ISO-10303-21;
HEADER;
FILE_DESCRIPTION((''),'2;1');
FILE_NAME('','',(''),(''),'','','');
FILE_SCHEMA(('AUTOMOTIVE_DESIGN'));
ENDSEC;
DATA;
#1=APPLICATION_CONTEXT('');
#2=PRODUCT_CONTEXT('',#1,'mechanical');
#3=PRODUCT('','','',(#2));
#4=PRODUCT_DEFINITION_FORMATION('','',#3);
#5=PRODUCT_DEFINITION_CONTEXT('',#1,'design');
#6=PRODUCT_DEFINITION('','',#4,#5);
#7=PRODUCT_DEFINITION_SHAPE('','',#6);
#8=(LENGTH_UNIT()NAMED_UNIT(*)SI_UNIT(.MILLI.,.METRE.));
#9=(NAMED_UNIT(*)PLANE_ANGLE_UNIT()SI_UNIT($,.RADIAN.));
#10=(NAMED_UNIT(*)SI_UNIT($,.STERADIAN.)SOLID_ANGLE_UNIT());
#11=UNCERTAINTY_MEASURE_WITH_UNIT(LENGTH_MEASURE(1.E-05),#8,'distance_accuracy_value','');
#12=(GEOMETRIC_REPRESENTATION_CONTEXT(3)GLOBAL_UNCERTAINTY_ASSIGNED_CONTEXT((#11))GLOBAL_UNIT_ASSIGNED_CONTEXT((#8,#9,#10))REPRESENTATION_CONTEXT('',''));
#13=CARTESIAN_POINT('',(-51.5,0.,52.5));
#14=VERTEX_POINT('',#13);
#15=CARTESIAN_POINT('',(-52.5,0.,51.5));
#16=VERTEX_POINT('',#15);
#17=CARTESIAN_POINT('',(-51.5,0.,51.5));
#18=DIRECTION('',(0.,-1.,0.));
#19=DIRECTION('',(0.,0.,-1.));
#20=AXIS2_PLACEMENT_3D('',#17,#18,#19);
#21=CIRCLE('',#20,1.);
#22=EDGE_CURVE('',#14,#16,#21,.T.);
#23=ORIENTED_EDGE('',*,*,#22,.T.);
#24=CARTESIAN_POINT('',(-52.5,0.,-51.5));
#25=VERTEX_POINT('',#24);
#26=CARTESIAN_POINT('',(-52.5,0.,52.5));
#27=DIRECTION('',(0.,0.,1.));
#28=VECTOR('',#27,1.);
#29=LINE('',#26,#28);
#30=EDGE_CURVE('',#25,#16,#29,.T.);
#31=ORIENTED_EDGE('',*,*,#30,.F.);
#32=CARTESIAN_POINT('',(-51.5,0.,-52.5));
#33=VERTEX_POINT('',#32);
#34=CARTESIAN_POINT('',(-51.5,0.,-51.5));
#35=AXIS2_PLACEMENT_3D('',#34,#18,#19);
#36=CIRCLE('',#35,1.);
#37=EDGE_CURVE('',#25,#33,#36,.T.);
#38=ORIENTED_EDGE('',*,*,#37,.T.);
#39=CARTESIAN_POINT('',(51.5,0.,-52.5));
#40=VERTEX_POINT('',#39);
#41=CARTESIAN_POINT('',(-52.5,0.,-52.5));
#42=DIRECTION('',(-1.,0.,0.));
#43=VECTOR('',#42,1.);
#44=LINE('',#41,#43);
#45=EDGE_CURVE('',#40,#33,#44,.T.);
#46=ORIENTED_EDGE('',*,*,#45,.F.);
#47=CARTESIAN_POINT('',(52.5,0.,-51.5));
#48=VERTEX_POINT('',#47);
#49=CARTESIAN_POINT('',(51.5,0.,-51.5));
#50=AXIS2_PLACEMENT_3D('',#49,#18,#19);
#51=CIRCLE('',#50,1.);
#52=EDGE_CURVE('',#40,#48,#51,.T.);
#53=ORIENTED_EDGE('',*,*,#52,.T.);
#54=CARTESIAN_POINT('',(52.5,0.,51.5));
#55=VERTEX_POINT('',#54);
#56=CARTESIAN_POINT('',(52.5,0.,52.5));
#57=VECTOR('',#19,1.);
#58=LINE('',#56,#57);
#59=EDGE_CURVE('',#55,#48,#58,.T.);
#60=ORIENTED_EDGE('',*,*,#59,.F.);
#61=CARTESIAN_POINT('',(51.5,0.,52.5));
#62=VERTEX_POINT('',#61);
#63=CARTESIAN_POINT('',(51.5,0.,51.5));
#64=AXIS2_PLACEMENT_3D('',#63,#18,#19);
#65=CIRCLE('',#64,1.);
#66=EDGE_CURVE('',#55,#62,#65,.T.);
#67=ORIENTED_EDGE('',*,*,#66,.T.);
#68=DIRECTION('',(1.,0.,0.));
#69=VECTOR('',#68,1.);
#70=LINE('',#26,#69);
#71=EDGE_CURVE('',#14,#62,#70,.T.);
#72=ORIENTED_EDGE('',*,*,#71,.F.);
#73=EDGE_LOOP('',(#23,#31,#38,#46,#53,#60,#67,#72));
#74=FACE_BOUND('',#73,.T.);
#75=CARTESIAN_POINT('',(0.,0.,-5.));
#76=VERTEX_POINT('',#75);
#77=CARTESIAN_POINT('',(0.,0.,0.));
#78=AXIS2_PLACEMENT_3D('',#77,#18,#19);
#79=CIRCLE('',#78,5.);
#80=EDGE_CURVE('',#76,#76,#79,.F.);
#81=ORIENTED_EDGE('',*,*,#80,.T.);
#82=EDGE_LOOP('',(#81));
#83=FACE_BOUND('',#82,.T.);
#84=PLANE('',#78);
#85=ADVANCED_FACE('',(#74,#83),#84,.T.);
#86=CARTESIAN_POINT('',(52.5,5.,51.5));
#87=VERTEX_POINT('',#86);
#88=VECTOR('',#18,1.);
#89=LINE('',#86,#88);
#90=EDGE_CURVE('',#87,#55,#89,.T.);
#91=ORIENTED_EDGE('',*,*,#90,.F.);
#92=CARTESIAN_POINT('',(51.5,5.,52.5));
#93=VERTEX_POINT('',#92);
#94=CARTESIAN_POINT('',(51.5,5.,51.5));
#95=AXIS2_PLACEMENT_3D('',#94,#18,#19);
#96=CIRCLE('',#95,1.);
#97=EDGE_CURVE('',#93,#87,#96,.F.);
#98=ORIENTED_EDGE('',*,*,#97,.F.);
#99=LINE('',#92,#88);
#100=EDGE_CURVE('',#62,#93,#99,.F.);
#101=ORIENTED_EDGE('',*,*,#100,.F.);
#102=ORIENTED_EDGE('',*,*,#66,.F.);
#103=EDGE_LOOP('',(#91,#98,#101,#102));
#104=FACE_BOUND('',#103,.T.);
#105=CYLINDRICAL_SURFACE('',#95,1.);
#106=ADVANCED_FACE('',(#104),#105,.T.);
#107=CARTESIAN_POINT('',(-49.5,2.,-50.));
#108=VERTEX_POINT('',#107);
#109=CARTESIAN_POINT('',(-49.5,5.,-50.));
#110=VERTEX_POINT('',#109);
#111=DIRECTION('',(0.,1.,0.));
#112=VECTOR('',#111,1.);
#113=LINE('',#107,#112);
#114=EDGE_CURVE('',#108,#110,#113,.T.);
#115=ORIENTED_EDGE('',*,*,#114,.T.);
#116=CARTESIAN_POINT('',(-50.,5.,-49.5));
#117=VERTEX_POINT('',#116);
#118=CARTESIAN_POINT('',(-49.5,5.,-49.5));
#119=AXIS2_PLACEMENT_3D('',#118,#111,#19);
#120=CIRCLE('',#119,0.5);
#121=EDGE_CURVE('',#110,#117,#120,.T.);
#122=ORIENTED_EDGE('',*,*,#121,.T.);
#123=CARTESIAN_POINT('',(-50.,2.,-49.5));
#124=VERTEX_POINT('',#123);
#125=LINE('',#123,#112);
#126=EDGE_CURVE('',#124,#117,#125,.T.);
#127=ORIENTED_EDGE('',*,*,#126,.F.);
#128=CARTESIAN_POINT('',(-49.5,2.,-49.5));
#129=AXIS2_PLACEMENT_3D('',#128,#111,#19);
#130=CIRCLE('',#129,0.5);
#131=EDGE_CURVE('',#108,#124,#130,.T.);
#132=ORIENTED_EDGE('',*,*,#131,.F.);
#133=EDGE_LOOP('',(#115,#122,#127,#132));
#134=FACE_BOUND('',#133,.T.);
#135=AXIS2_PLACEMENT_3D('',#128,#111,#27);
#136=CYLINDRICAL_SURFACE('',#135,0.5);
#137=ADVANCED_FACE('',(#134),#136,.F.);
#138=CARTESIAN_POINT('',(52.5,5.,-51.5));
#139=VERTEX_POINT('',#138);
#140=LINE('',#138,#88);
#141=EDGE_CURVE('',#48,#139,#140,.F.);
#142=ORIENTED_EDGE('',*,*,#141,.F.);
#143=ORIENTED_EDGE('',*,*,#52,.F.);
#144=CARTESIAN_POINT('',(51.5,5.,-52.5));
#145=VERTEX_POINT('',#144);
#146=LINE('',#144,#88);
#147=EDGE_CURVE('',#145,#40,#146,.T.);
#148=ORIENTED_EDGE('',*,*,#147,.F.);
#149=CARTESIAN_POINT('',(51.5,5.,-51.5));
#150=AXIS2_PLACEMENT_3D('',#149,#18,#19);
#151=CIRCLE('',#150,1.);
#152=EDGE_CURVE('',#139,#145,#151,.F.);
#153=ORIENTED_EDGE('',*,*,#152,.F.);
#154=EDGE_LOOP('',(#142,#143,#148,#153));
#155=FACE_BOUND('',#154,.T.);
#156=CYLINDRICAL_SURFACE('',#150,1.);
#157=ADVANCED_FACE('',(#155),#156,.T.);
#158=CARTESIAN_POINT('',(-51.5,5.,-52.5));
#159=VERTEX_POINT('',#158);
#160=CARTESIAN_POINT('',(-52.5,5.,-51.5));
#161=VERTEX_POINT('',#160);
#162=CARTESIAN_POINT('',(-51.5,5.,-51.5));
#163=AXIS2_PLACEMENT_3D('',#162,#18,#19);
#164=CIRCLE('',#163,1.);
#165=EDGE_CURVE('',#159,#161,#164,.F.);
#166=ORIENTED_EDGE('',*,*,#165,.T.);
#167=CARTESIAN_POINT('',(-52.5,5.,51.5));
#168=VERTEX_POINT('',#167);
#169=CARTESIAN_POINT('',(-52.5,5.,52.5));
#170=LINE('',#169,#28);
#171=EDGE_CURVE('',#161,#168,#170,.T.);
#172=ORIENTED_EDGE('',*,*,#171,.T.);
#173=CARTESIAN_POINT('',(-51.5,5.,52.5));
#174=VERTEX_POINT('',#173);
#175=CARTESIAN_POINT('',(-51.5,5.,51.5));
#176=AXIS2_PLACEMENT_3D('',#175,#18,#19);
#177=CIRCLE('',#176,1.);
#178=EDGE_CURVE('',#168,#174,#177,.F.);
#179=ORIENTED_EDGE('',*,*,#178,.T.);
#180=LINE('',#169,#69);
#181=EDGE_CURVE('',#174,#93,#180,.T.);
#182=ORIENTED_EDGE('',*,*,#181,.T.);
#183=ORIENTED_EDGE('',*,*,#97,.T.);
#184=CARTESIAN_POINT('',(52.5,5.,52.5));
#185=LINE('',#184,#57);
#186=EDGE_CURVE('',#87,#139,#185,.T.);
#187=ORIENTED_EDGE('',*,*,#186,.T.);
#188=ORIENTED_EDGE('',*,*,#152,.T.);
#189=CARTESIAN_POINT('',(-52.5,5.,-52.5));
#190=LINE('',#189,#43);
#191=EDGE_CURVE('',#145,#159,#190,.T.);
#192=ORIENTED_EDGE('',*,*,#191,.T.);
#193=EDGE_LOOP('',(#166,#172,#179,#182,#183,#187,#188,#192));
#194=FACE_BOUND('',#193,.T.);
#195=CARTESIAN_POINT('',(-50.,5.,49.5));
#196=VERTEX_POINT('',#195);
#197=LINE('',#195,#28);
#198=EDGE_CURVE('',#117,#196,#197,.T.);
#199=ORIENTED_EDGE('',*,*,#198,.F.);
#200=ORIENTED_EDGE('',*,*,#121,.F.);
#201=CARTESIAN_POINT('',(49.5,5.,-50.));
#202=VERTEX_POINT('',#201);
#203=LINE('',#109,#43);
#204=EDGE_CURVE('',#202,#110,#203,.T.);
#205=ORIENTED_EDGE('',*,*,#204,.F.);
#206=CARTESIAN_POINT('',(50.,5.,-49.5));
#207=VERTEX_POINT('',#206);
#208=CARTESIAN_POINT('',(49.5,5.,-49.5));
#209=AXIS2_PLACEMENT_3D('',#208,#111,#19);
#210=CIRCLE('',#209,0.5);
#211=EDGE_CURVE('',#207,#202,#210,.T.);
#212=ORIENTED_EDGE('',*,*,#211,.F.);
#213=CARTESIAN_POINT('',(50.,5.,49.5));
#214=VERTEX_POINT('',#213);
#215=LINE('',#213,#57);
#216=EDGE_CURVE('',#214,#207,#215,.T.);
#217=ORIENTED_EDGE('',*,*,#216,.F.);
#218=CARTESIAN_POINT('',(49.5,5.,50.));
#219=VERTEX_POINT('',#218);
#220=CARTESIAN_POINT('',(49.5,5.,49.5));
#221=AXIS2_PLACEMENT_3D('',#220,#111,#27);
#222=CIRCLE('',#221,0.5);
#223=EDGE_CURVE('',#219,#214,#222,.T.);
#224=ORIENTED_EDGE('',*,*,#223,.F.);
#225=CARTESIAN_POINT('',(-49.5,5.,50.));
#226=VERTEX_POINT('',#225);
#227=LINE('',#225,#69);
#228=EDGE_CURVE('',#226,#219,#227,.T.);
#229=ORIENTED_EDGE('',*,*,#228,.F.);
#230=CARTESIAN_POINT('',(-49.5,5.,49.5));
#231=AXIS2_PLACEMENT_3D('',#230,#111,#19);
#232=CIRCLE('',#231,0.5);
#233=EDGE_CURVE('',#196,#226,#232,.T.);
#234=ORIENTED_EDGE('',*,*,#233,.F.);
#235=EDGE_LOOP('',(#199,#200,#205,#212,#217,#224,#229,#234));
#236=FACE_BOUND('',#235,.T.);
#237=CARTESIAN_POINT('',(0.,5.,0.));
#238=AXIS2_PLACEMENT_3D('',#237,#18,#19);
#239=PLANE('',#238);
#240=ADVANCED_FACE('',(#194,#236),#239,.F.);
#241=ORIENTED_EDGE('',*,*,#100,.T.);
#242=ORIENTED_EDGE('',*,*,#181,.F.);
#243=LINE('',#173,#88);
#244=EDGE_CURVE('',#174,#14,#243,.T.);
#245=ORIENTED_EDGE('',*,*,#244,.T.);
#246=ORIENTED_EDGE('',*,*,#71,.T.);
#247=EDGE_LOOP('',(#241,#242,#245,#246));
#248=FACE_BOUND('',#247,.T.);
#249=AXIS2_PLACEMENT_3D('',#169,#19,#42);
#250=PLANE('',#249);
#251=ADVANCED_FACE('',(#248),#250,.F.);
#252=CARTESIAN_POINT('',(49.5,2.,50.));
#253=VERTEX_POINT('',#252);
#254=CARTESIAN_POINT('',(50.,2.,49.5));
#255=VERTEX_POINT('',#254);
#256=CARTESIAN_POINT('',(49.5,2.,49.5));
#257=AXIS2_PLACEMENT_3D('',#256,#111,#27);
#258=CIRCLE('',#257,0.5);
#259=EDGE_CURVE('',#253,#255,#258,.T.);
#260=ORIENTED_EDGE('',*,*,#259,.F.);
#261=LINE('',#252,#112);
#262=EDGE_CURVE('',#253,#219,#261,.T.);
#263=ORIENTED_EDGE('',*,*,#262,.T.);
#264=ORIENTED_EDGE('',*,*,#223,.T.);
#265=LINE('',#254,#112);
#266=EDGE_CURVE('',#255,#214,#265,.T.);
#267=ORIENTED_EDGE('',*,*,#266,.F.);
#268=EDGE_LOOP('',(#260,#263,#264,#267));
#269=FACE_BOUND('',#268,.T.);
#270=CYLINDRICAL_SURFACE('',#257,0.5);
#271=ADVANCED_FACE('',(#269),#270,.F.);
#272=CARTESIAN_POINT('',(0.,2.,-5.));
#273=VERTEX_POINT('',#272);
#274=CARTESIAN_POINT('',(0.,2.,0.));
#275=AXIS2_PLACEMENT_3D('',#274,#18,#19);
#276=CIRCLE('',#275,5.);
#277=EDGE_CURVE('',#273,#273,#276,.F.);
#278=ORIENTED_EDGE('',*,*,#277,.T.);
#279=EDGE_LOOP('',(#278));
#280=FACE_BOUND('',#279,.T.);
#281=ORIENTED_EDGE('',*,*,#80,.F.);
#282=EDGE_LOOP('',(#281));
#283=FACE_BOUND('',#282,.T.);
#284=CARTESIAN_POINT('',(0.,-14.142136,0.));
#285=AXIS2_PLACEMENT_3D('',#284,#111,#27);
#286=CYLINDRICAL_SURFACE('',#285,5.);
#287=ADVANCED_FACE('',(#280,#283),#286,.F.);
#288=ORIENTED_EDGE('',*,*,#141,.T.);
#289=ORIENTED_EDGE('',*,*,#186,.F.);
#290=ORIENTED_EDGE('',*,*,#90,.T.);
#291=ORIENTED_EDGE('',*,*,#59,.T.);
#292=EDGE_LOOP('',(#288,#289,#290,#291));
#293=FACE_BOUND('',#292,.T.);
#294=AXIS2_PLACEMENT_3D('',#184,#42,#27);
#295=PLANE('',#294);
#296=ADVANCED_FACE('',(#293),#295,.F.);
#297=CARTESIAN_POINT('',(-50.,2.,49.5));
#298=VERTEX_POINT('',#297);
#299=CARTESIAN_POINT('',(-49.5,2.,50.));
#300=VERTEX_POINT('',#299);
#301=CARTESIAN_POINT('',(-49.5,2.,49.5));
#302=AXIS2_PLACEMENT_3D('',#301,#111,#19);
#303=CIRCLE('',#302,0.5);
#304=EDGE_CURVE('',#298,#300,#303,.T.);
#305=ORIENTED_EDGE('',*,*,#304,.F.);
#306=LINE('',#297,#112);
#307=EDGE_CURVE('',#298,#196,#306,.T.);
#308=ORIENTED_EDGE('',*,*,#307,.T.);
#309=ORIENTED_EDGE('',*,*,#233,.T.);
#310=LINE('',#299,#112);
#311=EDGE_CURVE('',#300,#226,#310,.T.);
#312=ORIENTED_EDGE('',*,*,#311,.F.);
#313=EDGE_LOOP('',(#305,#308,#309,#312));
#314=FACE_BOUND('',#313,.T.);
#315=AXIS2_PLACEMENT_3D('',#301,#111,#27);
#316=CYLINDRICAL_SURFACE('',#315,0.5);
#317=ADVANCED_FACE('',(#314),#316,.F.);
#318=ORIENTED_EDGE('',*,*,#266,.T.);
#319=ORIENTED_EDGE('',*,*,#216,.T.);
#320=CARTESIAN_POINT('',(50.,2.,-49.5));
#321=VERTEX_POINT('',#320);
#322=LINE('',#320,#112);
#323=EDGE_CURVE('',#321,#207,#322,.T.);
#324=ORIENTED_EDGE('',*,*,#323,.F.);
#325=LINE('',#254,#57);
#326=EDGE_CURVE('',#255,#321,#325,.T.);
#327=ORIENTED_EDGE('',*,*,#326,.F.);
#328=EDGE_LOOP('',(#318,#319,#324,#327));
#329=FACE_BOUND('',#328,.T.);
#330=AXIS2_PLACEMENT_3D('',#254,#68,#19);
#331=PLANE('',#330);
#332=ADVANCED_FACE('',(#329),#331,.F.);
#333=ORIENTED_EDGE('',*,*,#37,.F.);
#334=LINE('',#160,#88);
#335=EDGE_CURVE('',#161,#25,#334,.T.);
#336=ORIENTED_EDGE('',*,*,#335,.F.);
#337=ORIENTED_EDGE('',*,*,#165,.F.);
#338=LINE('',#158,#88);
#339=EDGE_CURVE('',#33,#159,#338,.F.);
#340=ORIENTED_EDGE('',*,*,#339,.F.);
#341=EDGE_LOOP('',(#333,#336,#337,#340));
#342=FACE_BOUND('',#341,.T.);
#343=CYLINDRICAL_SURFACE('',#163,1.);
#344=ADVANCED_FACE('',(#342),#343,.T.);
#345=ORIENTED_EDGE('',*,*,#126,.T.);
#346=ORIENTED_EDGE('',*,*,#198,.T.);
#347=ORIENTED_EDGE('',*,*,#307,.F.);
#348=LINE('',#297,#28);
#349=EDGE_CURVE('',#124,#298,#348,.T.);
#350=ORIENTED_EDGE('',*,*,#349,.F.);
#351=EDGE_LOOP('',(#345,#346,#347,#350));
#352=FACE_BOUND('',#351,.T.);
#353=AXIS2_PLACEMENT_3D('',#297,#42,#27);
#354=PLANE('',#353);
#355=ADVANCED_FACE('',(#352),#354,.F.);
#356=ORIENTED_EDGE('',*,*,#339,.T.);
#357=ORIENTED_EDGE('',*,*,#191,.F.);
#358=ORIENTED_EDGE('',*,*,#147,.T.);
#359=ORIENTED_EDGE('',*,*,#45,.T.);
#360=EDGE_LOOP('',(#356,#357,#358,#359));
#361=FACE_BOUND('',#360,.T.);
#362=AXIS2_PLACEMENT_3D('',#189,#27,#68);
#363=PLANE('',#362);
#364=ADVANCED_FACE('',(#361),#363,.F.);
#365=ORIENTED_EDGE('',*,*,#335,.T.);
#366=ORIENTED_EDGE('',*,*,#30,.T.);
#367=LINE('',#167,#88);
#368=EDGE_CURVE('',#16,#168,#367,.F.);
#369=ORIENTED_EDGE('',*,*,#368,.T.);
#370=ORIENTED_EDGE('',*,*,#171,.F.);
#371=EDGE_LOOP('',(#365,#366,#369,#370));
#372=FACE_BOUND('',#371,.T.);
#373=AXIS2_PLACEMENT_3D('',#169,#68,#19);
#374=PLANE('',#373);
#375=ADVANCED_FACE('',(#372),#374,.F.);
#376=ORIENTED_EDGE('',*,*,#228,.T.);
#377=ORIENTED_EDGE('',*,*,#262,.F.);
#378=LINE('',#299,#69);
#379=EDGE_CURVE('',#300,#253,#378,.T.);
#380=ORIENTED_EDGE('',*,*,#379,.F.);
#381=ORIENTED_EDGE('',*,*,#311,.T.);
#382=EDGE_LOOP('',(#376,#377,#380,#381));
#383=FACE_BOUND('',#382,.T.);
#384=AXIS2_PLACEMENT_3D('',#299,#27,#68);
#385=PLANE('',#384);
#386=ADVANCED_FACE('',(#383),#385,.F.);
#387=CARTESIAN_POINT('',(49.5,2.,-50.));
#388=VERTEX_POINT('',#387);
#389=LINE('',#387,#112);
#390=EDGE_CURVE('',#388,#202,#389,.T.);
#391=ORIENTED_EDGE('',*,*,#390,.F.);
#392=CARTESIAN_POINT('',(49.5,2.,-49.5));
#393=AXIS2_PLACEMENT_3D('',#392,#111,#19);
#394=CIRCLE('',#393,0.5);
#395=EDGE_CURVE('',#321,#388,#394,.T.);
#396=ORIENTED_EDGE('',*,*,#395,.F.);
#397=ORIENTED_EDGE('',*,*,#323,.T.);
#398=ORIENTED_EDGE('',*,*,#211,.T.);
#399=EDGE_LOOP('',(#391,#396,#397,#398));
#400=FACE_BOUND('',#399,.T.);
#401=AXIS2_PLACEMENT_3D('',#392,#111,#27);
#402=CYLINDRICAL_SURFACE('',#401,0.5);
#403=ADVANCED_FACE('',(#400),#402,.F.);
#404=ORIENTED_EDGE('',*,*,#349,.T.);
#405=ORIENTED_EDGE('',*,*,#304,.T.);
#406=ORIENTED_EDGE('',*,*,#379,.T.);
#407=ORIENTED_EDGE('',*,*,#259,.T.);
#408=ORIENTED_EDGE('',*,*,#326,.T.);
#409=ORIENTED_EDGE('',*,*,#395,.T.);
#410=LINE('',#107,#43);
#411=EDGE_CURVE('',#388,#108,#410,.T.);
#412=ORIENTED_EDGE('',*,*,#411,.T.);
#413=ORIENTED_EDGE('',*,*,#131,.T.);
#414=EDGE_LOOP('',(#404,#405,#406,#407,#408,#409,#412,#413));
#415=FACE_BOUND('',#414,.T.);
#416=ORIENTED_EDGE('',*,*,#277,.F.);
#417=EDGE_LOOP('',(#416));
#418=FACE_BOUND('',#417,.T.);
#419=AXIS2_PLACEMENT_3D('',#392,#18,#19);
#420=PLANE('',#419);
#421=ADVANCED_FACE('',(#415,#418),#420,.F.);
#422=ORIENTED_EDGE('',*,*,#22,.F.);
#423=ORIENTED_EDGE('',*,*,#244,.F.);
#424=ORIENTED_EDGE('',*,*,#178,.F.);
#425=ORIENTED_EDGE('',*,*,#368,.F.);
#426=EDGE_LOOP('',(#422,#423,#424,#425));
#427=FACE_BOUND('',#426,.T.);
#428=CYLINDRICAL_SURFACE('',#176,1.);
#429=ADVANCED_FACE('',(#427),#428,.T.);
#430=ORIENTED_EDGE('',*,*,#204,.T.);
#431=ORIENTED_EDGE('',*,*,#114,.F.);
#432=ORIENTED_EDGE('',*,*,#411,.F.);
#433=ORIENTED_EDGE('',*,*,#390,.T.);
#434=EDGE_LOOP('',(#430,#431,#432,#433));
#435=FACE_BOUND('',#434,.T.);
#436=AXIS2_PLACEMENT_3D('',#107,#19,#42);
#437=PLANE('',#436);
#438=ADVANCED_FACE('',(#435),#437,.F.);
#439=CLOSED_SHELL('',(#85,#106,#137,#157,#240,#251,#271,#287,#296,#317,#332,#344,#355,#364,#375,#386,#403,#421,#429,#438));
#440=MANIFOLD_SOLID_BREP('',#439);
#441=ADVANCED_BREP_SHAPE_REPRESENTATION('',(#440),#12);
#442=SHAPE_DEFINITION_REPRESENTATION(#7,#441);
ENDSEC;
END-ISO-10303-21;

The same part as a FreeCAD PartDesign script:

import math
import FreeCAD as App
import Part
import Sketcher
from FreeCAD import Vector
Q = App.Units.Quantity


def edges_at(feature, points):
    """Names of the edges that pass closest to the given points."""
    edges = feature.Shape.Edges
    near = lambda p: min(range(len(edges)), key=lambda i: edges[i].distToShape(Part.Vertex(*p))[0])
    return sorted({f"Edge{near(p) + 1}" for p in points})

doc = App.newDocument("Part")
body = doc.addObject("PartDesign::Body", "Body")

# Sketch on XZ plane
sketch1 = body.newObject("Sketcher::SketchObject", "Sketch")
sketch1.AttachmentSupport = (doc.getObject("XZ_Plane"), [""])
sketch1.MapMode = "FlatFace"
sketch1.addGeometry(Part.LineSegment(Vector(-52, -52, 0), Vector(-52, 52, 0)), False)
sketch1.addGeometry(Part.LineSegment(Vector(-52, 52, 0), Vector(52, 52, 0)), False)
sketch1.addGeometry(Part.LineSegment(Vector(52, 52, 0), Vector(52, -52, 0)), False)
sketch1.addGeometry(Part.LineSegment(Vector(52, -52, 0), Vector(-52, -52, 0)), False)
sketch1.addConstraint(Sketcher.Constraint("Coincident", 0, 2, 1, 1))
sketch1.addConstraint(Sketcher.Constraint("Coincident", 1, 2, 2, 1))
sketch1.addConstraint(Sketcher.Constraint("Coincident", 2, 2, 3, 1))
sketch1.addConstraint(Sketcher.Constraint("Coincident", 3, 2, 0, 1))
sketch1.addConstraint(Sketcher.Constraint("Vertical", 0))
sketch1.addConstraint(Sketcher.Constraint("Horizontal", 1))
sketch1.addConstraint(Sketcher.Constraint("Vertical", 2))
sketch1.addConstraint(Sketcher.Constraint("Horizontal", 3))
sketch1.addConstraint(Sketcher.Constraint("Symmetric", 0, 2, 2, 2, -1, 1))
sketch1.addConstraint(Sketcher.Constraint("Equal", 3, 0))
sketch1.addConstraint(Sketcher.Constraint("DistanceX", 1, 1, 1, 2, Q("105 mm")))
pad1 = body.newObject("PartDesign::Pad", "Pad")
pad1.Profile = sketch1
pad1.Length = 5
pad1.Reversed = True

# Sketch on XZ plane
sketch2 = body.newObject("Sketcher::SketchObject", "Sketch001")
sketch2.AttachmentSupport = (doc.getObject("XZ_Plane"), [""])
sketch2.MapMode = "FlatFace"
sketch2.AttachmentOffset = App.Placement(Vector(0, 0, -5), App.Rotation())
sketch2.addGeometry(Part.Circle(Vector(0, 0, 0), Vector(0, 0, 1), 5), False)
sketch2.addConstraint(Sketcher.Constraint("Coincident", 0, 3, -1, 1))
sketch2.addConstraint(Sketcher.Constraint("Diameter", 0, Q("10 mm")))
pocket1 = body.newObject("PartDesign::Pocket", "Pocket")
pocket1.Profile = sketch2
pocket1.Length = 5
pocket1.Reversed = True

# Sketch on XZ plane
sketch3 = body.newObject("Sketcher::SketchObject", "Sketch002")
sketch3.AttachmentSupport = (doc.getObject("XZ_Plane"), [""])
sketch3.MapMode = "FlatFace"
sketch3.AttachmentOffset = App.Placement(Vector(0, 0, -5), App.Rotation())
sketch3.addGeometry(Part.LineSegment(Vector(-49.5, 50, 0), Vector(49.5, 50, 0)), False)
sketch3.addGeometry(Part.ArcOfCircle(Part.Circle(Vector(49.5, 49.5, 0), Vector(0, 0, 1), 0.5), math.radians(0), math.radians(90)), False)
sketch3.addGeometry(Part.LineSegment(Vector(50, 49.5, 0), Vector(50, -49.5, 0)), False)
sketch3.addGeometry(Part.ArcOfCircle(Part.Circle(Vector(49.5, -49.5, 0), Vector(0, 0, 1), 0.5), math.radians(-90), math.radians(0)), False)
sketch3.addGeometry(Part.LineSegment(Vector(49.5, -50, 0), Vector(-49.5, -50, 0)), False)
sketch3.addGeometry(Part.ArcOfCircle(Part.Circle(Vector(-49.5, -49.5, 0), Vector(0, 0, 1), 0.5), math.radians(180), math.radians(270)), False)
sketch3.addGeometry(Part.LineSegment(Vector(-50, -49.5, 0), Vector(-50, 49.5, 0)), False)
sketch3.addGeometry(Part.ArcOfCircle(Part.Circle(Vector(-49.5, 49.5, 0), Vector(0, 0, 1), 0.5), math.radians(90), math.radians(180)), False)
sketch3.addConstraint(Sketcher.Constraint("Tangent", 0, 2, 1, 2))
sketch3.addConstraint(Sketcher.Constraint("Tangent", 1, 1, 2, 1))
sketch3.addConstraint(Sketcher.Constraint("Tangent", 2, 2, 3, 2))
sketch3.addConstraint(Sketcher.Constraint("Tangent", 3, 1, 4, 1))
sketch3.addConstraint(Sketcher.Constraint("Tangent", 4, 2, 5, 2))
sketch3.addConstraint(Sketcher.Constraint("Tangent", 5, 1, 6, 1))
sketch3.addConstraint(Sketcher.Constraint("Tangent", 6, 2, 7, 2))
sketch3.addConstraint(Sketcher.Constraint("Tangent", 7, 1, 0, 1))
sketch3.addConstraint(Sketcher.Constraint("Horizontal", 0))
sketch3.addConstraint(Sketcher.Constraint("Vertical", 2))
sketch3.addConstraint(Sketcher.Constraint("Horizontal", 4))
sketch3.addConstraint(Sketcher.Constraint("Vertical", 6))
sketch3.addConstraint(Sketcher.Constraint("Equal", 1, 3))
sketch3.addConstraint(Sketcher.Constraint("Equal", 3, 5))
sketch3.addConstraint(Sketcher.Constraint("Equal", 5, 7))
sketch3.addConstraint(Sketcher.Constraint("Symmetric", 1, 3, 5, 3, -1, 1))
sketch3.addConstraint(Sketcher.Constraint("Equal", 4, 2))
sketch3.addConstraint(Sketcher.Constraint("Radius", 1, Q("0.5 mm")))
sketch3.addConstraint(Sketcher.Constraint("DistanceX", 0, 1, 0, 2, Q("99 mm")))
pocket2 = body.newObject("PartDesign::Pocket", "Pocket001")
pocket2.Profile = sketch3
pocket2.Length = 3
pocket2.Reversed = True
doc.recompute()

fillet = body.newObject("PartDesign::Fillet", "Fillet")
fillet.Base = (pocket2, edges_at(pocket2, [
    (52.5, 2.5, 52.5),
    (-52.5, 2.5, 52.5),
    (-52.5, 2.5, -52.5),
    (52.5, 2.5, -52.5),
]))
fillet.Radius = 1

doc.recompute()
